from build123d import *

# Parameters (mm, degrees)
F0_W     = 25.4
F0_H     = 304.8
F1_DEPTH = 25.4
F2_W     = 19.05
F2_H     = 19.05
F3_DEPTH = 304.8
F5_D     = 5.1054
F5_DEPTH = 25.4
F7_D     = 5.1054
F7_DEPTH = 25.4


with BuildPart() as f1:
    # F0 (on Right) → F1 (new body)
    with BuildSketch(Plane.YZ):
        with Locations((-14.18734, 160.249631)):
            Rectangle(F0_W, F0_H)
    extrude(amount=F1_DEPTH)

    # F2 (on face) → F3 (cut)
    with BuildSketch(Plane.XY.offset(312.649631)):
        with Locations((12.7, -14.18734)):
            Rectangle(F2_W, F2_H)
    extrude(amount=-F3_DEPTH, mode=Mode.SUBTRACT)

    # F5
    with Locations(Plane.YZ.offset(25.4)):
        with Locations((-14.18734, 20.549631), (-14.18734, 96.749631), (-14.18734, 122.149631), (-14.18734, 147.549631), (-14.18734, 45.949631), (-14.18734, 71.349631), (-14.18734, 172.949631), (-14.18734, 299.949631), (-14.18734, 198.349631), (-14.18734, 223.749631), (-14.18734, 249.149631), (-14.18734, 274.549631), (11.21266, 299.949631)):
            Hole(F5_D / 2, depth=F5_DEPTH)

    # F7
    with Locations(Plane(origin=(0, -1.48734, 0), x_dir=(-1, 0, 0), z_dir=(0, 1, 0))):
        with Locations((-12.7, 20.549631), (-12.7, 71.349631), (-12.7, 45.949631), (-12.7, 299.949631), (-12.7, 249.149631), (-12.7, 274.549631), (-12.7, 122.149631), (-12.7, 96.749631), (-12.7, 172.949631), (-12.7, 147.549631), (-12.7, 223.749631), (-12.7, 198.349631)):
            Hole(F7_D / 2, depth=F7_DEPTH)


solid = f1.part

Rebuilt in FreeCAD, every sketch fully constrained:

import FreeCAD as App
import Part
import Sketcher

V = App.Vector
Q = App.Units.Quantity

doc = App.newDocument("Part")
body = doc.addObject("PartDesign::Body", "Body")

# Sketch on YZ plane
sketch1 = body.newObject("Sketcher::SketchObject", "Sketch")
sketch1.AttachmentSupport = (doc.getObject("YZ_Plane"), [""])
sketch1.MapMode = "FlatFace"
sketch1.addGeometry([
    Part.LineSegment(V(-27, 313, 0), V(-27, 8, 0)),
    Part.LineSegment(V(-27, 8, 0), V(-1, 8, 0)),
    Part.LineSegment(V(-1, 8, 0), V(-1, 313, 0)),
    Part.LineSegment(V(-1, 313, 0), V(-27, 313, 0)),
], False)
sketch1.addConstraint([
    Sketcher.Constraint("Coincident", 0, 2, 1, 1),
    Sketcher.Constraint("Coincident", 1, 2, 2, 1),
    Sketcher.Constraint("Coincident", 2, 2, 3, 1),
    Sketcher.Constraint("Coincident", 3, 2, 0, 1),
    Sketcher.Constraint("Vertical", 0),
    Sketcher.Constraint("Horizontal", 1),
    Sketcher.Constraint("Vertical", 2),
    Sketcher.Constraint("Horizontal", 3),
    Sketcher.Constraint("DistanceX", 1, 1, 1, 2, Q("1 in")),
    Sketcher.Constraint("DistanceY", 0, 2, 0, 1, Q("12 in")),
    Sketcher.Constraint("DistanceX", 0, 2, -1, 1, Q("26.88734 mm")),
    Sketcher.Constraint("DistanceY", -1, 1, 0, 2, Q("7.849631 mm")),
])
pad1 = body.newObject("PartDesign::Pad", "Pad")
pad1.Profile = sketch1
pad1.Length = Q("1 in")

# Sketch on XY plane
sketch2 = body.newObject("Sketcher::SketchObject", "Sketch001")
sketch2.AttachmentSupport = (doc.getObject("XY_Plane"), [""])
sketch2.MapMode = "FlatFace"
sketch2.AttachmentOffset = App.Placement(V(0, 0, 312.649631), App.Rotation())
sketch2.addGeometry([
    Part.LineSegment(V(3, -5, 0), V(3, -24, 0)),
    Part.LineSegment(V(3, -24, 0), V(22, -24, 0)),
    Part.LineSegment(V(22, -24, 0), V(22, -5, 0)),
    Part.LineSegment(V(22, -5, 0), V(3, -5, 0)),
], False)
sketch2.addConstraint([
    Sketcher.Constraint("Coincident", 0, 2, 1, 1),
    Sketcher.Constraint("Coincident", 1, 2, 2, 1),
    Sketcher.Constraint("Coincident", 2, 2, 3, 1),
    Sketcher.Constraint("Coincident", 3, 2, 0, 1),
    Sketcher.Constraint("Vertical", 0),
    Sketcher.Constraint("Horizontal", 1),
    Sketcher.Constraint("Vertical", 2),
    Sketcher.Constraint("Horizontal", 3),
    Sketcher.Constraint("Equal", 3, 0),
    Sketcher.Constraint("DistanceX", 1, 1, 1, 2, Q("0.75 in")),
    Sketcher.Constraint("DistanceX", -1, 1, 0, 2, Q("0.125 in")),
    Sketcher.Constraint("DistanceY", 0, 2, -1, 1, Q("23.71234 mm")),
])
pocket1 = body.newObject("PartDesign::Pocket", "Pocket")
pocket1.Profile = sketch2
pocket1.Length = Q("12 in")

# Sketch on YZ plane
sketch3 = body.newObject("Sketcher::SketchObject", "Sketch002")
sketch3.AttachmentSupport = (doc.getObject("YZ_Plane"), [""])
sketch3.MapMode = "FlatFace"
sketch3.AttachmentOffset = App.Placement(V(0, 0, 1 * 25.4), App.Rotation())
sketch3.addGeometry([
    Part.Circle(V(-14.2, 20.5, 0), V(0, 0, 1), 2.6),  # 0
    Part.Circle(V(-14.2, 96.7, 0), V(0, 0, 1), 2.6),  # 1
    Part.Circle(V(-14.2, 122.1, 0), V(0, 0, 1), 2.6),  # 2
    Part.Circle(V(-14.2, 147.5, 0), V(0, 0, 1), 2.6),  # 3
    Part.Circle(V(-14.2, 45.9, 0), V(0, 0, 1), 2.6),  # 4
    Part.Circle(V(-14.2, 71.3, 0), V(0, 0, 1), 2.6),  # 5
    Part.Circle(V(-14.2, 172.9, 0), V(0, 0, 1), 2.6),  # 6
    Part.Circle(V(-14.2, 299.9, 0), V(0, 0, 1), 2.6),  # 7
    Part.Circle(V(-14.2, 198.3, 0), V(0, 0, 1), 2.6),  # 8
    Part.Circle(V(-14.2, 223.7, 0), V(0, 0, 1), 2.6),  # 9
    Part.Circle(V(-14.2, 249.1, 0), V(0, 0, 1), 2.6),  # 10
    Part.Circle(V(-14.2, 274.5, 0), V(0, 0, 1), 2.6),  # 11
    Part.Circle(V(11.2, 299.9, 0), V(0, 0, 1), 2.6),  # 12
], False)
sketch3.addConstraint([
    Sketcher.Constraint("Equal", 0, 1),
    Sketcher.Constraint("Equal", 1, 2),
    Sketcher.Constraint("Equal", 2, 3),
    Sketcher.Constraint("Equal", 3, 4),
    Sketcher.Constraint("Equal", 4, 5),
    Sketcher.Constraint("Equal", 5, 6),
    Sketcher.Constraint("Equal", 6, 7),
    Sketcher.Constraint("Equal", 7, 8),
    Sketcher.Constraint("Equal", 8, 9),
    Sketcher.Constraint("Equal", 9, 10),
    Sketcher.Constraint("Equal", 10, 11),
    Sketcher.Constraint("Equal", 11, 12),
    Sketcher.Constraint("Horizontal", 7, 3, 12, 3),
    Sketcher.Constraint("Vertical", 0, 3, 1, 3),
    Sketcher.Constraint("Vertical", 1, 3, 2, 3),
    Sketcher.Constraint("Vertical", 2, 3, 3, 3),
    Sketcher.Constraint("Vertical", 3, 3, 4, 3),
    Sketcher.Constraint("Vertical", 4, 3, 5, 3),
    Sketcher.Constraint("Vertical", 5, 3, 6, 3),
    Sketcher.Constraint("Vertical", 6, 3, 7, 3),
    Sketcher.Constraint("Vertical", 7, 3, 8, 3),
    Sketcher.Constraint("Vertical", 8, 3, 9, 3),
    Sketcher.Constraint("Vertical", 9, 3, 10, 3),
    Sketcher.Constraint("Vertical", 10, 3, 11, 3),
    Sketcher.Constraint("Diameter", 0, Q("0.201 in")),
    Sketcher.Constraint("DistanceY", 0, 3, 1, 3, Q("3 in")),
    Sketcher.Constraint("DistanceY", 1, 3, 2, 3, Q("1 in")),
    Sketcher.Constraint("DistanceY", 2, 3, 3, 3, Q("1 in")),
    Sketcher.Constraint("DistanceY", 0, 3, 4, 3, Q("1 in")),
    Sketcher.Constraint("DistanceY", 5, 3, 1, 3, Q("1 in")),
    Sketcher.Constraint("DistanceY", 3, 3, 6, 3, Q("1 in")),
    Sketcher.Constraint("DistanceY", 6, 3, 7, 3, Q("5 in")),
    Sketcher.Constraint("DistanceY", 6, 3, 8, 3, Q("1 in")),
    Sketcher.Constraint("DistanceY", 8, 3, 9, 3, Q("1 in")),
    Sketcher.Constraint("DistanceY", 9, 3, 10, 3, Q("1 in")),
    Sketcher.Constraint("DistanceY", 10, 3, 11, 3, Q("1 in")),
    Sketcher.Constraint("DistanceX", 7, 3, 12, 3, Q("1 in")),
    Sketcher.Constraint("DistanceX", 0, 3, -1, 1, Q("14.18734 mm")),
    Sketcher.Constraint("DistanceY", -1, 1, 0, 3, Q("20.549631 mm")),
])
doc.recompute()
hole = body.newObject("PartDesign::Hole", "Hole")
hole.Profile = sketch3
hole.ThreadType = "None"
hole.Diameter = Q("0.201 in")
hole.DepthType = "Dimension"
hole.Depth = Q("1 in")
hole.DrillPoint = "Flat"

# Sketch on XZ plane
sketch4 = body.newObject("Sketcher::SketchObject", "Sketch003")
sketch4.AttachmentSupport = (doc.getObject("XZ_Plane"), [""])
sketch4.MapMode = "FlatFace"
sketch4.AttachmentOffset = App.Placement(V(0, 0, 1.48734), App.Rotation())
sketch4.addGeometry([
    Part.Circle(V(12.7, 20.5, 0), V(0, 0, 1), 2.6),  # 0
    Part.Circle(V(12.7, 71.3, 0), V(0, 0, 1), 2.6),  # 1
    Part.Circle(V(12.7, 45.9, 0), V(0, 0, 1), 2.6),  # 2
    Part.Circle(V(12.7, 299.9, 0), V(0, 0, 1), 2.6),  # 3
    Part.Circle(V(12.7, 249.1, 0), V(0, 0, 1), 2.6),  # 4
    Part.Circle(V(12.7, 274.5, 0), V(0, 0, 1), 2.6),  # 5
    Part.Circle(V(12.7, 122.1, 0), V(0, 0, 1), 2.6),  # 6
    Part.Circle(V(12.7, 96.7, 0), V(0, 0, 1), 2.6),  # 7
    Part.Circle(V(12.7, 172.9, 0), V(0, 0, 1), 2.6),  # 8
    Part.Circle(V(12.7, 147.5, 0), V(0, 0, 1), 2.6),  # 9
    Part.Circle(V(12.7, 223.7, 0), V(0, 0, 1), 2.6),  # 10
    Part.Circle(V(12.7, 198.3, 0), V(0, 0, 1), 2.6),  # 11
], False)
sketch4.addConstraint([
    Sketcher.Constraint("Equal", 0, 1),
    Sketcher.Constraint("Equal", 1, 2),
    Sketcher.Constraint("Equal", 2, 3),
    Sketcher.Constraint("Equal", 3, 4),
    Sketcher.Constraint("Equal", 4, 5),
    Sketcher.Constraint("Equal", 5, 6),
    Sketcher.Constraint("Equal", 6, 7),
    Sketcher.Constraint("Equal", 7, 8),
    Sketcher.Constraint("Equal", 8, 9),
    Sketcher.Constraint("Equal", 9, 10),
    Sketcher.Constraint("Equal", 10, 11),
    Sketcher.Constraint("Vertical", 0, 3, 1, 3),
    Sketcher.Constraint("Vertical", 1, 3, 2, 3),
    Sketcher.Constraint("Vertical", 2, 3, 3, 3),
    Sketcher.Constraint("Vertical", 3, 3, 4, 3),
    Sketcher.Constraint("Vertical", 4, 3, 5, 3),
    Sketcher.Constraint("Vertical", 5, 3, 6, 3),
    Sketcher.Constraint("Vertical", 6, 3, 7, 3),
    Sketcher.Constraint("Vertical", 7, 3, 8, 3),
    Sketcher.Constraint("Vertical", 8, 3, 9, 3),
    Sketcher.Constraint("Vertical", 9, 3, 10, 3),
    Sketcher.Constraint("Vertical", 10, 3, 11, 3),
    Sketcher.Constraint("Diameter", 0, Q("0.201 in")),
    Sketcher.Constraint("DistanceY", 0, 3, 1, 3, Q("2 in")),
    Sketcher.Constraint("DistanceY", 0, 3, 2, 3, Q("1 in")),
    Sketcher.Constraint("DistanceY", 1, 3, 3, 3, Q("9 in")),
    Sketcher.Constraint("DistanceY", 4, 3, 3, 3, Q("2 in")),
    Sketcher.Constraint("DistanceY", 4, 3, 5, 3, Q("1 in")),
    Sketcher.Constraint("DistanceY", 1, 3, 6, 3, Q("2 in")),
    Sketcher.Constraint("DistanceY", 1, 3, 7, 3, Q("1 in")),
    Sketcher.Constraint("DistanceY", 6, 3, 8, 3, Q("2 in")),
    Sketcher.Constraint("DistanceY", 6, 3, 9, 3, Q("1 in")),
    Sketcher.Constraint("DistanceY", 10, 3, 4, 3, Q("1 in")),
    Sketcher.Constraint("DistanceY", 8, 3, 11, 3, Q("1 in")),
    Sketcher.Constraint("DistanceX", -1, 1, 0, 3, Q("0.5 in")),
    Sketcher.Constraint("DistanceY", -1, 1, 0, 3, Q("20.549631 mm")),
])
doc.recompute()
hole2 = body.newObject("PartDesign::Hole", "Hole001")
hole2.Profile = sketch4
hole2.ThreadType = "None"
hole2.Diameter = Q("0.201 in")
hole2.DepthType = "Dimension"
hole2.Depth = Q("1 in")
hole2.DrillPoint = "Flat"
hole2.Reversed = True

doc.recompute()
